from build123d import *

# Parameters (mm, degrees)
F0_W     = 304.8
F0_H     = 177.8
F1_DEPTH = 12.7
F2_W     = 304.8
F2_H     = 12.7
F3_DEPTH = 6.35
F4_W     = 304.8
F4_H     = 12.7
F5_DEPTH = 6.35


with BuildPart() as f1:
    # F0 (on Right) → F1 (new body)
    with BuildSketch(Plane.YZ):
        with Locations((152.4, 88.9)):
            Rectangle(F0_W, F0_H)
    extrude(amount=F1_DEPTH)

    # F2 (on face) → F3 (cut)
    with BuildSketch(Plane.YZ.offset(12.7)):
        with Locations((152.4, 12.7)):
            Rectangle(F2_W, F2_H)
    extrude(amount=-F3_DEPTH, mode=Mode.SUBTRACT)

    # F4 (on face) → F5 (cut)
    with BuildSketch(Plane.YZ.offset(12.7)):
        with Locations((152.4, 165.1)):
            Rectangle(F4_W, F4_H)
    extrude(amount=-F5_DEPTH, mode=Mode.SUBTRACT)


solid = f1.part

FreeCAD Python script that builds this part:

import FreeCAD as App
import Part
import Sketcher
from FreeCAD import Vector
Q = App.Units.Quantity

doc = App.newDocument("Part")
params = doc.addObject("Spreadsheet::Sheet", "Params")
for row, (alias, value) in enumerate([
    ("sketch1_width", "12 in"),
    ("sketch1_height", "7 in"),
    ("pad1_length", "0.5 in"),
    ("sketch2_width", "12 in"),
    ("sketch2_height", "0.5 in"),
    ("pocket1_length", "0.25 in"),
    ("sketch3_width", "12 in"),
    ("sketch3_height", "0.5 in"),
    ("pocket2_length", "0.25 in"),
], start=1):
    params.set(f"A{row}", alias)
    params.set(f"B{row}", "=" + value)
    params.setAlias(f"B{row}", alias)

body = doc.addObject("PartDesign::Body", "Body")

# Sketch on YZ plane
sketch1 = body.newObject("Sketcher::SketchObject", "Sketch")
sketch1.AttachmentSupport = (doc.getObject("YZ_Plane"), [""])
sketch1.MapMode = "FlatFace"
sketch1.addGeometry([
    Part.LineSegment(Vector(0, 178, 0), Vector(0, 0, 0)),
    Part.LineSegment(Vector(0, 0, 0), Vector(305, 0, 0)),
    Part.LineSegment(Vector(305, 0, 0), Vector(305, 178, 0)),
    Part.LineSegment(Vector(305, 178, 0), Vector(0, 178, 0)),
], False)
sketch1.addConstraint([
    Sketcher.Constraint("Coincident", 0, 2, 1, 1),
    Sketcher.Constraint("Coincident", 1, 2, 2, 1),
    Sketcher.Constraint("Coincident", 2, 2, 3, 1),
    Sketcher.Constraint("Coincident", 3, 2, 0, 1),
    Sketcher.Constraint("Vertical", 0),
    Sketcher.Constraint("Horizontal", 1),
    Sketcher.Constraint("Vertical", 2),
    Sketcher.Constraint("Horizontal", 3),
    Sketcher.Constraint("Coincident", 0, 2, -1, 1),
    Sketcher.Constraint("DistanceX", 1, 1, 1, 2, Q("12 in")),
    Sketcher.Constraint("DistanceY", 0, 2, 0, 1, Q("7 in")),
])
sketch1.setExpression("Constraints[9]", "Params.sketch1_width")
sketch1.setExpression("Constraints[10]", "Params.sketch1_height")
pad1 = body.newObject("PartDesign::Pad", "Pad")
pad1.Profile = sketch1
pad1.setExpression("Length", "Params.pad1_length")

# Sketch on YZ plane
sketch2 = body.newObject("Sketcher::SketchObject", "Sketch001")
sketch2.AttachmentSupport = (doc.getObject("YZ_Plane"), [""])
sketch2.MapMode = "FlatFace"
sketch2.AttachmentOffset = App.Placement(Vector(0, 0, 0.5 * 25.4), App.Rotation())
sketch2.addGeometry([
    Part.LineSegment(Vector(0, 19, 0), Vector(0, 6, 0)),
    Part.LineSegment(Vector(0, 6, 0), Vector(305, 6, 0)),
    Part.LineSegment(Vector(305, 6, 0), Vector(305, 19, 0)),
    Part.LineSegment(Vector(305, 19, 0), Vector(0, 19, 0)),
], False)
sketch2.addConstraint([
    Sketcher.Constraint("Coincident", 0, 2, 1, 1),
    Sketcher.Constraint("Coincident", 1, 2, 2, 1),
    Sketcher.Constraint("Coincident", 2, 2, 3, 1),
    Sketcher.Constraint("Coincident", 3, 2, 0, 1),
    Sketcher.Constraint("Vertical", 0),
    Sketcher.Constraint("Horizontal", 1),
    Sketcher.Constraint("Vertical", 2),
    Sketcher.Constraint("Horizontal", 3),
    Sketcher.Constraint("PointOnObject", 0, 2, -2),
    Sketcher.Constraint("DistanceX", 1, 1, 1, 2, Q("12 in")),
    Sketcher.Constraint("DistanceY", 0, 2, 0, 1, Q("0.5 in")),
    Sketcher.Constraint("DistanceY", -1, 1, 0, 2, Q("0.25 in")),
])
sketch2.setExpression("Constraints[9]", "Params.sketch2_width")
sketch2.setExpression("Constraints[10]", "Params.sketch2_height")
pocket1 = body.newObject("PartDesign::Pocket", "Pocket")
pocket1.Profile = sketch2
pocket1.setExpression("Length", "Params.pocket1_length")

# Sketch on YZ plane
sketch3 = body.newObject("Sketcher::SketchObject", "Sketch002")
sketch3.AttachmentSupport = (doc.getObject("YZ_Plane"), [""])
sketch3.MapMode = "FlatFace"
sketch3.AttachmentOffset = App.Placement(Vector(0, 0, 0.5 * 25.4), App.Rotation())
sketch3.addGeometry([
    Part.LineSegment(Vector(0, 171, 0), Vector(0, 159, 0)),
    Part.LineSegment(Vector(0, 159, 0), Vector(305, 159, 0)),
    Part.LineSegment(Vector(305, 159, 0), Vector(305, 171, 0)),
    Part.LineSegment(Vector(305, 171, 0), Vector(0, 171, 0)),
], False)
sketch3.addConstraint([
    Sketcher.Constraint("Coincident", 0, 2, 1, 1),
    Sketcher.Constraint("Coincident", 1, 2, 2, 1),
    Sketcher.Constraint("Coincident", 2, 2, 3, 1),
    Sketcher.Constraint("Coincident", 3, 2, 0, 1),
    Sketcher.Constraint("Vertical", 0),
    Sketcher.Constraint("Horizontal", 1),
    Sketcher.Constraint("Vertical", 2),
    Sketcher.Constraint("Horizontal", 3),
    Sketcher.Constraint("PointOnObject", 0, 2, -2),
    Sketcher.Constraint("DistanceX", 1, 1, 1, 2, Q("12 in")),
    Sketcher.Constraint("DistanceY", 0, 2, 0, 1, Q("0.5 in")),
    Sketcher.Constraint("DistanceY", -1, 1, 0, 2, Q("6.25 in")),
])
sketch3.setExpression("Constraints[9]", "Params.sketch3_width")
sketch3.setExpression("Constraints[10]", "Params.sketch3_height")
pocket2 = body.newObject("PartDesign::Pocket", "Pocket001")
pocket2.Profile = sketch3
pocket2.setExpression("Length", "Params.pocket2_length")

doc.recompute()
